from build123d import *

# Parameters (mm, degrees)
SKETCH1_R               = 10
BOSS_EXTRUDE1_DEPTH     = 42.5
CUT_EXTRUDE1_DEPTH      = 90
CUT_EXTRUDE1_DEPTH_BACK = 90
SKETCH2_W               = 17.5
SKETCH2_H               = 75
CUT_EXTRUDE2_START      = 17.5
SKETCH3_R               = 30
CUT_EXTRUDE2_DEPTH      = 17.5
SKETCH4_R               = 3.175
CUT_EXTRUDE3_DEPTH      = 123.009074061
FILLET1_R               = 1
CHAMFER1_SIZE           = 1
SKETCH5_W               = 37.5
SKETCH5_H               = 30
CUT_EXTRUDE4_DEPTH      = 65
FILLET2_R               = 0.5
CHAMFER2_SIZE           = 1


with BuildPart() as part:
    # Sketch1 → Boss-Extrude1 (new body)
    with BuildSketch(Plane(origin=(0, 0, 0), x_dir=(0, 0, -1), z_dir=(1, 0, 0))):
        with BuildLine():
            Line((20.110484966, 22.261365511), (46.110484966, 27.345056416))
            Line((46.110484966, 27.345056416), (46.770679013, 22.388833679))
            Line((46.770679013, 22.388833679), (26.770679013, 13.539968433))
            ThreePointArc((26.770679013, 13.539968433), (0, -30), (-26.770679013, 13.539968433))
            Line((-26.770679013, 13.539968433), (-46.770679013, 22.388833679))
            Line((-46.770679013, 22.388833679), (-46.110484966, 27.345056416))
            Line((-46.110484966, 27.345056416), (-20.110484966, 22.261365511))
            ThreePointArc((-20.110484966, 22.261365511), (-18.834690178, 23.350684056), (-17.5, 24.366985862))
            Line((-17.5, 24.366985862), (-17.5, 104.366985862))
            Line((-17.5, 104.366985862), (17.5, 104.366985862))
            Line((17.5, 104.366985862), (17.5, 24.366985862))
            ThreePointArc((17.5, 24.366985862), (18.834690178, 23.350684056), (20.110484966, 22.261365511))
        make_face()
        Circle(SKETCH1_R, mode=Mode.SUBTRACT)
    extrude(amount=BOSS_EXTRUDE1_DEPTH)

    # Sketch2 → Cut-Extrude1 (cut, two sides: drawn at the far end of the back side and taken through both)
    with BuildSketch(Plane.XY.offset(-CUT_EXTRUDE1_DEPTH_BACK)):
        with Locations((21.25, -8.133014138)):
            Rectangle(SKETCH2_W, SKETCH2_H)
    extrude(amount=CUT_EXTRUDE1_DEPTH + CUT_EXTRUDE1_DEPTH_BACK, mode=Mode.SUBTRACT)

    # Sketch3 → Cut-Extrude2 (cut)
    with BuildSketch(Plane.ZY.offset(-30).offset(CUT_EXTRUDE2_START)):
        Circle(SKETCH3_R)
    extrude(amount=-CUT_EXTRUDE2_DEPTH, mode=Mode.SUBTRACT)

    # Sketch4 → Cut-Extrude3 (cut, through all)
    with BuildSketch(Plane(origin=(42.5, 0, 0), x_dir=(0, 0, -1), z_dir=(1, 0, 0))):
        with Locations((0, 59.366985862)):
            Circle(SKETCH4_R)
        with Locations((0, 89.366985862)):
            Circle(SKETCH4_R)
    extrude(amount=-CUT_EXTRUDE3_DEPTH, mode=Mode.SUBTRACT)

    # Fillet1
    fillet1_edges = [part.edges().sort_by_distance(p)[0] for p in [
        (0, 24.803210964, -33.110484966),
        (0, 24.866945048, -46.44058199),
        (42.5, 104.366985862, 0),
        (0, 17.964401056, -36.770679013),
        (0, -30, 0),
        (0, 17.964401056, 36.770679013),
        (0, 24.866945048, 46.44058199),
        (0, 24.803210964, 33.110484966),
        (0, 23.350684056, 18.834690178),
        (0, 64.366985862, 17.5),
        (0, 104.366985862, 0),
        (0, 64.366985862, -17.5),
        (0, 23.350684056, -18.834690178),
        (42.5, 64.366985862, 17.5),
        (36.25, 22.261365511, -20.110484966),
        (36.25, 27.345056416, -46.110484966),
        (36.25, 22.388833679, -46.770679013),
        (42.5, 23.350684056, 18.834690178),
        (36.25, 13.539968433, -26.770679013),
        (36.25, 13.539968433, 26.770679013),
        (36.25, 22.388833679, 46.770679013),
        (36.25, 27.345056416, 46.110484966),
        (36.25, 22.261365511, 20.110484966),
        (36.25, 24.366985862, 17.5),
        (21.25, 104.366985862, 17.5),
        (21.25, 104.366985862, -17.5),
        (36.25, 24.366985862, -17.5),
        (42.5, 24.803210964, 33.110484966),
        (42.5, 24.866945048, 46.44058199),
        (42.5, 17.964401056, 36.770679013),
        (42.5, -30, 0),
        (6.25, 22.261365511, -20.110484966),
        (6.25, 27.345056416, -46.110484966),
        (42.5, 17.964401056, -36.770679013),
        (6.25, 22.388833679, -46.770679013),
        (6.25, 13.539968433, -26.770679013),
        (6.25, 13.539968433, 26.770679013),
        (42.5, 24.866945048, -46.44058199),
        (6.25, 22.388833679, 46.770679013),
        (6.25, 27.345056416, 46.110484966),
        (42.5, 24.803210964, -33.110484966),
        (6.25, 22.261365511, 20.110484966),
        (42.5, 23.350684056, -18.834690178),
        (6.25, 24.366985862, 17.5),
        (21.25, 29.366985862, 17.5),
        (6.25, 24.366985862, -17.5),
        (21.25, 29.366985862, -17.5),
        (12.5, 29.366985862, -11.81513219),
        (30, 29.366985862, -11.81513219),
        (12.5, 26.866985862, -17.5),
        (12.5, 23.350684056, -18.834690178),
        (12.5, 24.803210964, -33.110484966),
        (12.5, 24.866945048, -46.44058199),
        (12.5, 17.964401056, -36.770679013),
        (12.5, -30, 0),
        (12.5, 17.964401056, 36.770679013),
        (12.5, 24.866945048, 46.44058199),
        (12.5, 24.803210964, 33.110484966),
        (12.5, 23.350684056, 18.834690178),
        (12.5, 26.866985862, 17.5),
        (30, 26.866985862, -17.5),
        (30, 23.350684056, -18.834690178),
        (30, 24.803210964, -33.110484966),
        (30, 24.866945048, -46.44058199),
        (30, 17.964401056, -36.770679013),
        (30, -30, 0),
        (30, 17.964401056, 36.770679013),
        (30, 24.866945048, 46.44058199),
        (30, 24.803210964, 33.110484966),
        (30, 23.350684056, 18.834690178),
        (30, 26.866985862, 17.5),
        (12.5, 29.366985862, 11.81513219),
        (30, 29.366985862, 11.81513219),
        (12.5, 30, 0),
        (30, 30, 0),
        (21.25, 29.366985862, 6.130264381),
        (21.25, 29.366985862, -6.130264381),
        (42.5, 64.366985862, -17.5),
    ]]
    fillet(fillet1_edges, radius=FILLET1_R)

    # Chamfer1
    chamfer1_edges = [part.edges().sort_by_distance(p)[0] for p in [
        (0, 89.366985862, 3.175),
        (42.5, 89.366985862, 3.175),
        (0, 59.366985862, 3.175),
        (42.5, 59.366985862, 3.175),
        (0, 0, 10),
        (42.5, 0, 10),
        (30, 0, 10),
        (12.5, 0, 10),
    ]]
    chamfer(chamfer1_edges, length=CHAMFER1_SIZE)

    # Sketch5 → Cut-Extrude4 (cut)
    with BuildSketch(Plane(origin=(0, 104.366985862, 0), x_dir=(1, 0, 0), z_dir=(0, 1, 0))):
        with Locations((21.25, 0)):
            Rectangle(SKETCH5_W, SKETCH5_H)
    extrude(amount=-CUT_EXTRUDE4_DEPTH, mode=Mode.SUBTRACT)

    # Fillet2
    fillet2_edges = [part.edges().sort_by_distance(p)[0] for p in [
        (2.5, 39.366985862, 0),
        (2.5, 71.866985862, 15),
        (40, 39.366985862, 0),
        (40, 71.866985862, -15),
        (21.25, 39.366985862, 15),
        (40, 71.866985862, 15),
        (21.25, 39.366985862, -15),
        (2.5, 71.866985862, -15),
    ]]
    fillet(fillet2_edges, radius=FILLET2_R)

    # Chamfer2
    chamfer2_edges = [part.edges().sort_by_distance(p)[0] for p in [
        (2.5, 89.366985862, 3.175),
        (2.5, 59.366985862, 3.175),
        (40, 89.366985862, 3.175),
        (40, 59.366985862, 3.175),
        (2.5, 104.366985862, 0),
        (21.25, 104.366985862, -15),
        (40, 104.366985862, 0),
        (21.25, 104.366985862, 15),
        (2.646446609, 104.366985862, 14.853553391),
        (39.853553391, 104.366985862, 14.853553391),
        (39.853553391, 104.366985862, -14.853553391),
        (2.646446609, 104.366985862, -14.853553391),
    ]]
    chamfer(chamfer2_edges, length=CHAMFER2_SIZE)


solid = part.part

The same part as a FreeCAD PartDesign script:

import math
import FreeCAD as App
import Part
import Sketcher
Q = App.Units.Quantity


def edges_at(feature, points):
    """Names of the edges that pass closest to the given points."""
    edges = feature.Shape.Edges
    near = lambda p: min(range(len(edges)), key=lambda i: edges[i].distToShape(Part.Vertex(*p))[0])
    return sorted({f"Edge{near(p) + 1}" for p in points})

doc = App.newDocument("Part")
body = doc.addObject("PartDesign::Body", "Body")

sketch1 = doc.addObject("Sketcher::SketchObject", "Sketch")
body.addObject(sketch1)
sketch1.AttachmentSupport = (doc.YZ_Plane, [""])
sketch1.MapMode = "FlatFace"
sketch1.addGeometry([
    Part.LineSegment(App.Vector(27.345056, -46.110485, 0), App.Vector(22.261366, -20.110485, 0)),
    Part.ArcOfCircle(Part.Circle(App.Vector(0, 0, 0), App.Vector(0, 0, 1), 30), math.radians(-42.094045), math.radians(-35.685335)),
    Part.LineSegment(App.Vector(24.366986, -17.5, 0), App.Vector(104.366986, -17.5, 0)),
    Part.LineSegment(App.Vector(104.366986, -17.5, 0), App.Vector(104.366986, 17.5, 0)),
    Part.LineSegment(App.Vector(104.366986, 17.5, 0), App.Vector(24.366986, 17.5, 0)),
    Part.ArcOfCircle(Part.Circle(App.Vector(0, 0, 0), App.Vector(0, 0, 1), 30), math.radians(35.685335), math.radians(42.094045)),
    Part.LineSegment(App.Vector(22.261366, 20.110485, 0), App.Vector(27.345056, 46.110485, 0)),
    Part.LineSegment(App.Vector(27.345056, 46.110485, 0), App.Vector(22.388834, 46.770679, 0)),
    Part.LineSegment(App.Vector(22.388834, 46.770679, 0), App.Vector(13.539968, 26.770679, 0)),
    Part.ArcOfCircle(Part.Circle(App.Vector(0, 0, 0), App.Vector(0, 0, 1), 30), math.radians(63.170806), math.radians(296.829194)),
    Part.LineSegment(App.Vector(13.539968, -26.770679, 0), App.Vector(22.388834, -46.770679, 0)),
    Part.LineSegment(App.Vector(22.388834, -46.770679, 0), App.Vector(27.345056, -46.110485, 0)),
    Part.Circle(App.Vector(0, 0, 0), App.Vector(0, 0, 1), 10),
], False)
sketch1.addConstraint([
    Sketcher.Constraint("Coincident", 0, 2, 1, 1),
    Sketcher.Constraint("Coincident", 1, 2, 2, 1),
    Sketcher.Constraint("Coincident", 2, 2, 3, 1),
    Sketcher.Constraint("Coincident", 3, 2, 4, 1),
    Sketcher.Constraint("Coincident", 4, 2, 5, 1),
    Sketcher.Constraint("Coincident", 5, 2, 6, 1),
    Sketcher.Constraint("Coincident", 6, 2, 7, 1),
    Sketcher.Constraint("Coincident", 7, 2, 8, 1),
    Sketcher.Constraint("Coincident", 8, 2, 9, 1),
    Sketcher.Constraint("Coincident", 9, 2, 10, 1),
    Sketcher.Constraint("Coincident", 10, 2, 11, 1),
    Sketcher.Constraint("Coincident", 11, 2, 0, 1),
    Sketcher.Constraint("Horizontal", 2),
    Sketcher.Constraint("Vertical", 3),
    Sketcher.Constraint("Horizontal", 4),
    Sketcher.Constraint("Coincident", 1, 3, -1, 1),
    Sketcher.Constraint("Coincident", 5, 3, -1, 1),
    Sketcher.Constraint("Coincident", 9, 3, -1, 1),
    Sketcher.Constraint("Coincident", 12, 3, -1, 1),
    Sketcher.Constraint("Equal", 1, 5),
    Sketcher.Constraint("Equal", 5, 9),
    Sketcher.Constraint("Symmetric", 7, 2, 10, 2, -1),
    Sketcher.Constraint("Symmetric", 6, 2, 11, 2, -1),
    Sketcher.Constraint("Vertical", 1, 2, 4, 2),
    Sketcher.Constraint("Vertical", 0, 2, 5, 2),
    Sketcher.Constraint("Vertical", 8, 2, 9, 2),
    Sketcher.Constraint("Diameter", 12, Q("20 mm")),
    Sketcher.Constraint("Radius", 1, Q("30 mm")),
    Sketcher.Constraint("DistanceX", 2, 1, 2, 2, Q("80 mm")),
    Sketcher.Constraint("DistanceY", 3, 1, 3, 2, Q("35 mm")),
    Sketcher.Constraint("Distance", 7, Q("5 mm")),
    Sketcher.Constraint("DistanceY", 5, 2, 6, 2, Q("26 mm")),
    Sketcher.Constraint("DistanceY", 8, 2, 7, 2, Q("20 mm")),
    Sketcher.Constraint("DistanceY", -1, 1, 7, 2, Q("46.770679 mm")),
    Sketcher.Constraint("DistanceX", 0, 2, 1, 2, Q("2.10562 mm")),
    Sketcher.Constraint("DistanceX", 5, 2, 6, 2, Q("5.083691 mm")),
])
pad1 = doc.addObject("PartDesign::Pad", "Pad")
body.addObject(pad1)
pad1.Profile = sketch1
pad1.Length = 42.5

sketch2 = doc.addObject("Sketcher::SketchObject", "Sketch001")
body.addObject(sketch2)
sketch2.AttachmentSupport = (doc.XY_Plane, [""])
sketch2.MapMode = "FlatFace"
sketch2.addGeometry([
    Part.LineSegment(App.Vector(12.5, 29.366986, 0), App.Vector(12.5, -45.633014, 0)),
    Part.LineSegment(App.Vector(12.5, -45.633014, 0), App.Vector(30, -45.633014, 0)),
    Part.LineSegment(App.Vector(30, -45.633014, 0), App.Vector(30, 29.366986, 0)),
    Part.LineSegment(App.Vector(30, 29.366986, 0), App.Vector(12.5, 29.366986, 0)),
], False)
sketch2.addConstraint([
    Sketcher.Constraint("Coincident", 0, 2, 1, 1),
    Sketcher.Constraint("Coincident", 1, 2, 2, 1),
    Sketcher.Constraint("Coincident", 2, 2, 3, 1),
    Sketcher.Constraint("Coincident", 3, 2, 0, 1),
    Sketcher.Constraint("Vertical", 0),
    Sketcher.Constraint("Horizontal", 1),
    Sketcher.Constraint("Vertical", 2),
    Sketcher.Constraint("Horizontal", 3),
    Sketcher.Constraint("DistanceY", 0, 2, 0, 1, Q("75 mm")),
    Sketcher.Constraint("DistanceX", 1, 1, 1, 2, Q("17.5 mm")),
    Sketcher.Constraint("DistanceX", -1, 1, 1, 2, Q("30 mm")),
    Sketcher.Constraint("DistanceY", 0, 2, -1, 1, Q("45.633014 mm")),
])
pocket1 = doc.addObject("PartDesign::Pocket", "Pocket")
body.addObject(pocket1)
pocket1.Profile = sketch2
pocket1.Type = "ThroughAll"
pocket1.Midplane = True

sketch3 = doc.addObject("Sketcher::SketchObject", "Sketch002")
body.addObject(sketch3)
sketch3.AttachmentSupport = (doc.YZ_Plane, [""])
sketch3.MapMode = "FlatFace"
sketch3.AttachmentOffset = App.Placement(App.Vector(0, 0, 12.5), App.Rotation())
sketch3.addGeometry(Part.Circle(App.Vector(0, 0, 0), App.Vector(0, 0, 1), 30), False)
sketch3.addConstraint([
    Sketcher.Constraint("Coincident", 0, 3, -1, 1),
    Sketcher.Constraint("Diameter", 0, Q("60 mm")),
])
pocket2 = doc.addObject("PartDesign::Pocket", "Pocket001")
body.addObject(pocket2)
pocket2.Profile = sketch3
pocket2.Length = 17.5
pocket2.Reversed = True

sketch4 = doc.addObject("Sketcher::SketchObject", "Sketch003")
body.addObject(sketch4)
sketch4.AttachmentSupport = (doc.YZ_Plane, [""])
sketch4.MapMode = "FlatFace"
sketch4.AttachmentOffset = App.Placement(App.Vector(0, 0, 42.5), App.Rotation())
sketch4.addGeometry([
    Part.Circle(App.Vector(59.366986, 0, 0), App.Vector(0, 0, 1), 3.175),
    Part.Circle(App.Vector(89.366986, 0, 0), App.Vector(0, 0, 1), 3.175),
], False)
sketch4.addConstraint([
    Sketcher.Constraint("Equal", 0, 1),
    Sketcher.Constraint("PointOnObject", 0, 3, -1),
    Sketcher.Constraint("PointOnObject", 1, 3, -1),
    Sketcher.Constraint("Diameter", 0, Q("6.35 mm")),
    Sketcher.Constraint("DistanceX", 0, 3, 1, 3, Q("30 mm")),
    Sketcher.Constraint("DistanceX", -1, 1, 0, 3, Q("59.366986 mm")),
])
pocket3 = doc.addObject("PartDesign::Pocket", "Pocket002")
body.addObject(pocket3)
pocket3.Profile = sketch4
pocket3.Type = "ThroughAll"
doc.recompute()

fillet = doc.addObject("PartDesign::Fillet", "Fillet")
body.addObject(fillet)
fillet.Base = (pocket3, edges_at(pocket3, [
    (0, 24.803, -33.11),
    (0, 24.867, -46.441),
    (42.5, 104.367, 0),
    (0, 17.964, -36.771),
    (0, -30, 0),
    (0, 17.964, 36.771),
    (0, 24.867, 46.441),
    (0, 24.803, 33.11),
    (0, 23.351, 18.835),
    (0, 64.367, 17.5),
    (0, 104.367, 0),
    (0, 64.367, -17.5),
    (0, 23.351, -18.835),
    (42.5, 64.367, 17.5),
    (36.25, 22.261, -20.11),
    (36.25, 27.345, -46.11),
    (36.25, 22.389, -46.771),
    (42.5, 23.351, 18.835),
    (36.25, 13.54, -26.771),
    (36.25, 13.54, 26.771),
    (36.25, 22.389, 46.771),
    (36.25, 27.345, 46.11),
    (36.25, 22.261, 20.11),
    (36.25, 24.367, 17.5),
    (21.25, 104.367, 17.5),
    (21.25, 104.367, -17.5),
    (36.25, 24.367, -17.5),
    (42.5, 24.803, 33.11),
    (42.5, 24.867, 46.441),
    (42.5, 17.964, 36.771),
    (42.5, -30, 0),
    (6.25, 22.261, -20.11),
    (6.25, 27.345, -46.11),
    (42.5, 17.964, -36.771),
    (6.25, 22.389, -46.771),
    (6.25, 13.54, -26.771),
    (6.25, 13.54, 26.771),
    (42.5, 24.867, -46.441),
    (6.25, 22.389, 46.771),
    (6.25, 27.345, 46.11),
    (42.5, 24.803, -33.11),
    (6.25, 22.261, 20.11),
    (42.5, 23.351, -18.835),
    (6.25, 24.367, 17.5),
    (21.25, 29.367, 17.5),
    (6.25, 24.367, -17.5),
    (21.25, 29.367, -17.5),
    (12.5, 29.367, -11.815),
    (30, 29.367, -11.815),
    (12.5, 26.867, -17.5),
    (12.5, 23.351, -18.835),
    (12.5, 24.803, -33.11),
    (12.5, 24.867, -46.441),
    (12.5, 17.964, -36.771),
    (12.5, -30, 0),
    (12.5, 17.964, 36.771),
    (12.5, 24.867, 46.441),
    (12.5, 24.803, 33.11),
    (12.5, 23.351, 18.835),
    (12.5, 26.867, 17.5),
    (30, 26.867, -17.5),
    (30, 23.351, -18.835),
    (30, 24.803, -33.11),
    (30, 24.867, -46.441),
    (30, 17.964, -36.771),
    (30, -30, 0),
    (30, 17.964, 36.771),
    (30, 24.867, 46.441),
    (30, 24.803, 33.11),
    (30, 23.351, 18.835),
    (30, 26.867, 17.5),
    (12.5, 29.367, 11.815),
    (30, 29.367, 11.815),
    (12.5, 30, 0),
    (30, 30, 0),
    (21.25, 29.367, 6.13),
    (21.25, 29.367, -6.13),
    (42.5, 64.367, -17.5),
]))
fillet.Radius = 1
doc.recompute()

chamfer = doc.addObject("PartDesign::Chamfer", "Chamfer")
body.addObject(chamfer)
chamfer.Base = (fillet, edges_at(fillet, [
    (0, 89.367, 3.175),
    (42.5, 89.367, 3.175),
    (0, 59.367, 3.175),
    (42.5, 59.367, 3.175),
    (0, 0, 10),
    (42.5, 0, 10),
    (30, 0, 10),
    (12.5, 0, 10),
]))
chamfer.Size = 1

sketch5 = doc.addObject("Sketcher::SketchObject", "Sketch004")
body.addObject(sketch5)
sketch5.AttachmentSupport = (doc.XZ_Plane, [""])
sketch5.MapMode = "FlatFace"
sketch5.AttachmentOffset = App.Placement(App.Vector(0, 0, -104.366986), App.Rotation())
sketch5.addGeometry([
    Part.LineSegment(App.Vector(2.5, -15, 0), App.Vector(2.5, 15, 0)),
    Part.LineSegment(App.Vector(2.5, 15, 0), App.Vector(40, 15, 0)),
    Part.LineSegment(App.Vector(40, 15, 0), App.Vector(40, -15, 0)),
    Part.LineSegment(App.Vector(40, -15, 0), App.Vector(2.5, -15, 0)),
], False)
sketch5.addConstraint([
    Sketcher.Constraint("Coincident", 0, 2, 1, 1),
    Sketcher.Constraint("Coincident", 1, 2, 2, 1),
    Sketcher.Constraint("Coincident", 2, 2, 3, 1),
    Sketcher.Constraint("Coincident", 3, 2, 0, 1),
    Sketcher.Constraint("Vertical", 0),
    Sketcher.Constraint("Horizontal", 1),
    Sketcher.Constraint("Vertical", 2),
    Sketcher.Constraint("Horizontal", 3),
    Sketcher.Constraint("DistanceY", 0, 1, 0, 2, Q("30 mm")),
    Sketcher.Constraint("DistanceX", 1, 1, 1, 2, Q("37.5 mm")),
    Sketcher.Constraint("DistanceY", -1, 1, 0, 2, Q("15 mm")),
    Sketcher.Constraint("DistanceX", -1, 1, 1, 2, Q("40 mm")),
])
pocket4 = doc.addObject("PartDesign::Pocket", "Pocket003")
body.addObject(pocket4)
pocket4.Profile = sketch5
pocket4.Length = 65
pocket4.Reversed = True
doc.recompute()

fillet2 = doc.addObject("PartDesign::Fillet", "Fillet001")
body.addObject(fillet2)
fillet2.Base = (pocket4, edges_at(pocket4, [
    (2.5, 39.367, 0),
    (2.5, 71.867, 15),
    (40, 39.367, 0),
    (40, 71.867, -15),
    (21.25, 39.367, 15),
    (40, 71.867, 15),
    (21.25, 39.367, -15),
    (2.5, 71.867, -15),
]))
fillet2.Radius = 0.5
doc.recompute()

chamfer2 = doc.addObject("PartDesign::Chamfer", "Chamfer001")
body.addObject(chamfer2)
chamfer2.Base = (fillet2, edges_at(fillet2, [
    (2.5, 89.367, 3.175),
    (2.5, 59.367, 3.175),
    (40, 89.367, 3.175),
    (40, 59.367, 3.175),
    (2.5, 104.367, 0),
    (21.25, 104.367, -15),
    (40, 104.367, 0),
    (21.25, 104.367, 15),
    (2.646, 104.367, 14.854),
    (39.854, 104.367, 14.854),
    (39.854, 104.367, -14.854),
    (2.646, 104.367, -14.854),
]))
chamfer2.Size = 1

doc.recompute()
